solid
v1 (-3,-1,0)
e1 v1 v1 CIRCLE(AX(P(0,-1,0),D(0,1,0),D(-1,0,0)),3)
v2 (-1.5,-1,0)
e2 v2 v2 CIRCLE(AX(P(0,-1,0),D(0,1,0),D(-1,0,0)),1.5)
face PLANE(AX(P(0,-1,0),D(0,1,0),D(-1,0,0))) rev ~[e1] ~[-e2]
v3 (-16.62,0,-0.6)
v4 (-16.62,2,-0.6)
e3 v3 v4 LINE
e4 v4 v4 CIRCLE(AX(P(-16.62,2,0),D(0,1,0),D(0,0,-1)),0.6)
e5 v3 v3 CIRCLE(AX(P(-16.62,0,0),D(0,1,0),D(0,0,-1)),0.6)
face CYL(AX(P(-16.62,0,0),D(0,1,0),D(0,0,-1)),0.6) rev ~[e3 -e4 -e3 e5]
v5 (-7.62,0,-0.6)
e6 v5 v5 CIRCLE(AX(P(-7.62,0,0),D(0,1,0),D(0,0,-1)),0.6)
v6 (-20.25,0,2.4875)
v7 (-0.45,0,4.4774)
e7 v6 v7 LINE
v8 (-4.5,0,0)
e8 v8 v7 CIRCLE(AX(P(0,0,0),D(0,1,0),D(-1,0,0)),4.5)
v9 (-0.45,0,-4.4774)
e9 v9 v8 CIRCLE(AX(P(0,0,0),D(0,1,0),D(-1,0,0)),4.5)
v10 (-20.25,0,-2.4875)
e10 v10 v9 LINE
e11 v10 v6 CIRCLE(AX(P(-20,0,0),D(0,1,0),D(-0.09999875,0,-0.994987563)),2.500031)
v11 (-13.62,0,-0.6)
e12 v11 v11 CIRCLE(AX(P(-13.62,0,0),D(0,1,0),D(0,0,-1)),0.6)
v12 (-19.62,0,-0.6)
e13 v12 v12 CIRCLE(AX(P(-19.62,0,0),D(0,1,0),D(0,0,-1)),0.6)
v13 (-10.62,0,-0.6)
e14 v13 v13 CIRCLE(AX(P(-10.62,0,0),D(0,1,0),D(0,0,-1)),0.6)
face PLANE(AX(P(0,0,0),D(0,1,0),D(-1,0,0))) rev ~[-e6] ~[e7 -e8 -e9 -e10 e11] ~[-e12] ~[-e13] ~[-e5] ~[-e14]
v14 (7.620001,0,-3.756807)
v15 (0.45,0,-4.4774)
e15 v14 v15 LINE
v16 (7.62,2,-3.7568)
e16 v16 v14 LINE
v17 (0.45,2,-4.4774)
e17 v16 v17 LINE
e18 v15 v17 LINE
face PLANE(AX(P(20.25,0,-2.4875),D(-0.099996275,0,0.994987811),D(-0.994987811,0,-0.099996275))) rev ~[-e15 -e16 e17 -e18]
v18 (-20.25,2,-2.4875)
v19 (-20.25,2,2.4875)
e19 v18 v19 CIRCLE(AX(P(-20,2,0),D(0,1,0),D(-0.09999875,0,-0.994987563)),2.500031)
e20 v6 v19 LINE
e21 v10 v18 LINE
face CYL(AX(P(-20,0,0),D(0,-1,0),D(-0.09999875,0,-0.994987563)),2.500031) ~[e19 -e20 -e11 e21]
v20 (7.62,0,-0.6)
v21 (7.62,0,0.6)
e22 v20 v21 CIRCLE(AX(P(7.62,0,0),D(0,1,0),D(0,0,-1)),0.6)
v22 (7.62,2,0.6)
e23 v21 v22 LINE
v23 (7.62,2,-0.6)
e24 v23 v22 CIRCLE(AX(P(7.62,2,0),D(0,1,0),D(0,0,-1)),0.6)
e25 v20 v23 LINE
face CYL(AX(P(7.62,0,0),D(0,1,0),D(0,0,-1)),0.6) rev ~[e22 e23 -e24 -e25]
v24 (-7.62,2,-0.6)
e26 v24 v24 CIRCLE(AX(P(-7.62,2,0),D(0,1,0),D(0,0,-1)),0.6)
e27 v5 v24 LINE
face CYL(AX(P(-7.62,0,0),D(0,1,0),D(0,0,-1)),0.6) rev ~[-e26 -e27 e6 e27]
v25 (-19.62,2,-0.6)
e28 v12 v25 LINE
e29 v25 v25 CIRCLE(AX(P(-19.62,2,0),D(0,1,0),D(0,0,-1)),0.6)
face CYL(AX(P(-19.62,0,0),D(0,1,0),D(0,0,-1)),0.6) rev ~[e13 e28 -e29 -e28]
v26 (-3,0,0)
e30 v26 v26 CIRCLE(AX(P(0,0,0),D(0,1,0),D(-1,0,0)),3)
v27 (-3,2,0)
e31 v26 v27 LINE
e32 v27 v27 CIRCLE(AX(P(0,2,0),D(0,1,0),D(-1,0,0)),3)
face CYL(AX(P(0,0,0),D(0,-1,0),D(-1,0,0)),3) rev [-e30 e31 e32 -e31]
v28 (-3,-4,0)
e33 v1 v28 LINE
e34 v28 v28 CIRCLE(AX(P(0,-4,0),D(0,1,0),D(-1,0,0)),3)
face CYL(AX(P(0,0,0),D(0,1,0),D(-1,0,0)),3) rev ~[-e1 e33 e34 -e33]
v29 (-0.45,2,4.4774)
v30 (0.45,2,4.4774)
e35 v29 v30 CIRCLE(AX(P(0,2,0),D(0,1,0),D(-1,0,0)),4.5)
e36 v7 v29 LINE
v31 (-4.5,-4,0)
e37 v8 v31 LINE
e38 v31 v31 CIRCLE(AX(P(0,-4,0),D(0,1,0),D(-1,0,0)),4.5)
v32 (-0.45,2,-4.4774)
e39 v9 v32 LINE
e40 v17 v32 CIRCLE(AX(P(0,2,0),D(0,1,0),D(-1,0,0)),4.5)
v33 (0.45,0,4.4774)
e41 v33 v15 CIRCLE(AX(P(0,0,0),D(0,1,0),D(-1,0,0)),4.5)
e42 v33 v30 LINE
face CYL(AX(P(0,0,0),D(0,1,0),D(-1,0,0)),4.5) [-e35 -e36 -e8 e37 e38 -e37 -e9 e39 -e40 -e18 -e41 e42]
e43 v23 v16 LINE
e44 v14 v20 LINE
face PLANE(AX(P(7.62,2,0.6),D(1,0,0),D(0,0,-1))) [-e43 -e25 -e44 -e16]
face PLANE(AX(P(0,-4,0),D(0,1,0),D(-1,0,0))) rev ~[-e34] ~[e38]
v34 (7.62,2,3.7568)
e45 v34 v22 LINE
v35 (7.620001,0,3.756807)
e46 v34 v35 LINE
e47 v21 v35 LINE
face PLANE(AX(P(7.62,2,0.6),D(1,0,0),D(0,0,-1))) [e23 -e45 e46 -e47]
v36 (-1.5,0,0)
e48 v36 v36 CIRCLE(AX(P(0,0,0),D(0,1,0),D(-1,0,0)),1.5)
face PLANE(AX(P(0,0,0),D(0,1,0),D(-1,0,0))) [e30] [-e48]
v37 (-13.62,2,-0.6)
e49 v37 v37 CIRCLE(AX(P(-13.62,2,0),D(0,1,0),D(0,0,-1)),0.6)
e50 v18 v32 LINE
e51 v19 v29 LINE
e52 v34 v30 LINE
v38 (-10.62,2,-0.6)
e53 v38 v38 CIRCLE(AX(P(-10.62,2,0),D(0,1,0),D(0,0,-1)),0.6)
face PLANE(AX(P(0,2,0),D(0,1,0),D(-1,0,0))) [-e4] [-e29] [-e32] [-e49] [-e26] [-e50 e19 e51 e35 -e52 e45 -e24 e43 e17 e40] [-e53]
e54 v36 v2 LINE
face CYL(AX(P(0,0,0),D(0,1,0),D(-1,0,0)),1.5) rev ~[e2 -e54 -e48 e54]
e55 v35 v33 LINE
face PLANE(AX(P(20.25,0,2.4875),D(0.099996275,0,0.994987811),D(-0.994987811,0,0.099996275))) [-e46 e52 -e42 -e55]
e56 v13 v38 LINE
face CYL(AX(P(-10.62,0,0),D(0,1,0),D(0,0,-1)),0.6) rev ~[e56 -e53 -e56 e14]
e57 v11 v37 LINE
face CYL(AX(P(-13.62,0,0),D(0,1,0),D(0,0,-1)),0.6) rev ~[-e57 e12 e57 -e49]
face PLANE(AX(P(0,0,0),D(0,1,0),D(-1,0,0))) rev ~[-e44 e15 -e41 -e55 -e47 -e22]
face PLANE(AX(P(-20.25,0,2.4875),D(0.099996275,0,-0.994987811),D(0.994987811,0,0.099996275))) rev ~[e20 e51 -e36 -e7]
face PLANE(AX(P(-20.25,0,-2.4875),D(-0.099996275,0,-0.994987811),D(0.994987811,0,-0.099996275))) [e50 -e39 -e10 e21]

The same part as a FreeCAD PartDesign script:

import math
import FreeCAD as App
import Part
import Sketcher
Q = App.Units.Quantity

doc = App.newDocument("Part")
params = doc.addObject("Spreadsheet::Sheet", "Params")
for row, (alias, value) in enumerate([
    ("sketch1_diameter", "6 mm"),
    ("sketch1_radius", "4.5 mm"),
    ("sketch1_radius2", "2.5 mm"),
    ("pad1_length", "2 mm"),
    ("sketch2_diameter", "9 mm"),
    ("sketch2_diameter2", "3 mm"),
    ("pad2_length", "1 mm"),
    ("sketch3_diameter", "9 mm"),
    ("sketch3_diameter2", "6 mm"),
    ("pad3_length", "4 mm"),
    ("sketch4_diameter", "1.2 mm"),
    ("hole_diameter", "1.2 mm"),
    ("hole_depth", "8 mm"),
    ("sketch5_diameter", "1.2 mm"),
    ("sketch5_radius", "2.5 mm"),
    ("pocket1_length", "2 mm"),
], start=1):
    params.set(f"A{row}", alias)
    params.set(f"B{row}", "=" + value)
    params.setAlias(f"B{row}", alias)

body = doc.addObject("PartDesign::Body", "Body")

sketch1 = doc.addObject("Sketcher::SketchObject", "Sketch")
body.addObject(sketch1)
sketch1.AttachmentSupport = (doc.XZ_Plane, [""])
sketch1.MapMode = "FlatFace"
sketch1.addGeometry(Part.ArcOfCircle(Part.Circle(App.Vector(0, 0, 0), App.Vector(0, 0, 1), 4.5), math.radians(-95.739226), math.radians(-84.260774)), False)
sketch1.addGeometry(Part.LineSegment(App.Vector(-0.45, -4.4774, 0), App.Vector(-20.25, -2.4875, 0)), False)
sketch1.addGeometry(Part.ArcOfCircle(Part.Circle(App.Vector(-20, 0, 0), App.Vector(0, 0, 1), 2.500031), math.radians(95.739098), math.radians(264.260902)), False)
sketch1.addGeometry(Part.LineSegment(App.Vector(-20.25, 2.4875, 0), App.Vector(-0.45, 4.4774, 0)), False)
sketch1.addGeometry(Part.ArcOfCircle(Part.Circle(App.Vector(0, 0, 0), App.Vector(0, 0, 1), 4.5), math.radians(84.260774), math.radians(95.739226)), False)
sketch1.addGeometry(Part.LineSegment(App.Vector(0.45, 4.4774, 0), App.Vector(20.25, 2.4875, 0)), False)
sketch1.addGeometry(Part.ArcOfCircle(Part.Circle(App.Vector(20, 0, 0), App.Vector(0, 0, 1), 2.500031), math.radians(-84.260902), math.radians(84.260902)), False)
sketch1.addGeometry(Part.LineSegment(App.Vector(20.25, -2.4875, 0), App.Vector(0.45, -4.4774, 0)), False)
sketch1.addGeometry(Part.Circle(App.Vector(0, 0, 0), App.Vector(0, 0, 1), 3), False)
sketch1.addConstraint(Sketcher.Constraint("Tangent", 0, 1, 1, 1))
sketch1.addConstraint(Sketcher.Constraint("Tangent", 1, 2, 2, 2))
sketch1.addConstraint(Sketcher.Constraint("Tangent", 2, 1, 3, 1))
sketch1.addConstraint(Sketcher.Constraint("Tangent", 3, 2, 4, 2))
sketch1.addConstraint(Sketcher.Constraint("Tangent", 4, 1, 5, 1))
sketch1.addConstraint(Sketcher.Constraint("Tangent", 5, 2, 6, 2))
sketch1.addConstraint(Sketcher.Constraint("Tangent", 6, 1, 7, 1))
sketch1.addConstraint(Sketcher.Constraint("Tangent", 7, 2, 0, 2))
sketch1.addConstraint(Sketcher.Constraint("Coincident", 0, 3, -1, 1))
sketch1.addConstraint(Sketcher.Constraint("Coincident", 4, 3, -1, 1))
sketch1.addConstraint(Sketcher.Constraint("Coincident", 8, 3, -1, 1))
sketch1.addConstraint(Sketcher.Constraint("Equal", 0, 4))
sketch1.addConstraint(Sketcher.Constraint("Equal", 2, 6))
sketch1.addConstraint(Sketcher.Constraint("Symmetric", 2, 3, 6, 3, -1, 1))
sketch1.addConstraint(Sketcher.Constraint("PointOnObject", 2, 3, -1))
sketch1.addConstraint(Sketcher.Constraint("Diameter", 8, 6.0))
sketch1.addConstraint(Sketcher.Constraint("Radius", 0, 4.5))
sketch1.addConstraint(Sketcher.Constraint("Radius", 2, 2.5))
sketch1.addConstraint(Sketcher.Constraint("DistanceX", 2, 3, 6, 3, 40.0))
sketch1.setExpression("Constraints[15]", "Params.sketch1_diameter")
sketch1.setExpression("Constraints[16]", "Params.sketch1_radius")
sketch1.setExpression("Constraints[17]", "Params.sketch1_radius2")
pad1 = doc.addObject("PartDesign::Pad", "Pad")
body.addObject(pad1)
pad1.Profile = sketch1
pad1.setExpression("Length", "Params.pad1_length")
pad1.Reversed = True

sketch2 = doc.addObject("Sketcher::SketchObject", "Sketch001")
body.addObject(sketch2)
sketch2.AttachmentSupport = (doc.XZ_Plane, [""])
sketch2.MapMode = "FlatFace"
sketch2.addGeometry(Part.Circle(App.Vector(0, 0, 0), App.Vector(0, 0, 1), 4.5), False)
sketch2.addGeometry(Part.Circle(App.Vector(0, 0, 0), App.Vector(0, 0, 1), 1.5), False)
sketch2.addConstraint(Sketcher.Constraint("Coincident", 0, 3, -1, 1))
sketch2.addConstraint(Sketcher.Constraint("Coincident", 1, 3, -1, 1))
sketch2.addConstraint(Sketcher.Constraint("Diameter", 0, 9.0))
sketch2.addConstraint(Sketcher.Constraint("Diameter", 1, 3.0))
sketch2.setExpression("Constraints[2]", "Params.sketch2_diameter")
sketch2.setExpression("Constraints[3]", "Params.sketch2_diameter2")
pad2 = doc.addObject("PartDesign::Pad", "Pad001")
body.addObject(pad2)
pad2.Profile = sketch2
pad2.setExpression("Length", "Params.pad2_length")

sketch3 = doc.addObject("Sketcher::SketchObject", "Sketch002")
body.addObject(sketch3)
sketch3.AttachmentSupport = (doc.XZ_Plane, [""])
sketch3.MapMode = "FlatFace"
sketch3.addGeometry(Part.Circle(App.Vector(0, 0, 0), App.Vector(0, 0, 1), 4.5), False)
sketch3.addGeometry(Part.Circle(App.Vector(0, 0, 0), App.Vector(0, 0, 1), 3), False)
sketch3.addConstraint(Sketcher.Constraint("Coincident", 0, 3, -1, 1))
sketch3.addConstraint(Sketcher.Constraint("Coincident", 1, 3, -1, 1))
sketch3.addConstraint(Sketcher.Constraint("Diameter", 0, 9.0))
sketch3.addConstraint(Sketcher.Constraint("Diameter", 1, 6.0))
sketch3.setExpression("Constraints[2]", "Params.sketch3_diameter")
sketch3.setExpression("Constraints[3]", "Params.sketch3_diameter2")
pad3 = doc.addObject("PartDesign::Pad", "Pad002")
body.addObject(pad3)
pad3.Profile = sketch3
pad3.setExpression("Length", "Params.pad3_length")

sketch4 = doc.addObject("Sketcher::SketchObject", "Sketch003")
body.addObject(sketch4)
sketch4.AttachmentSupport = (doc.XZ_Plane, [""])
sketch4.MapMode = "FlatFace"
sketch4.addGeometry(Part.Circle(App.Vector(-7.62, 0, 0), App.Vector(0, 0, 1), 0.6), False)
sketch4.addGeometry(Part.Circle(App.Vector(-10.62, 0, 0), App.Vector(0, 0, 1), 0.6), False)
sketch4.addGeometry(Part.Circle(App.Vector(-13.62, 0, 0), App.Vector(0, 0, 1), 0.6), False)
sketch4.addGeometry(Part.Circle(App.Vector(-16.62, 0, 0), App.Vector(0, 0, 1), 0.6), False)
sketch4.addGeometry(Part.Circle(App.Vector(-19.62, 0, 0), App.Vector(0, 0, 1), 0.6), False)
sketch4.addGeometry(Part.Circle(App.Vector(19.62, 0, 0), App.Vector(0, 0, 1), 0.6), False)
sketch4.addGeometry(Part.Circle(App.Vector(16.62, 0, 0), App.Vector(0, 0, 1), 0.6), False)
sketch4.addGeometry(Part.Circle(App.Vector(13.62, 0, 0), App.Vector(0, 0, 1), 0.6), False)
sketch4.addGeometry(Part.Circle(App.Vector(10.62, 0, 0), App.Vector(0, 0, 1), 0.6), False)
sketch4.addGeometry(Part.Circle(App.Vector(7.62, 0, 0), App.Vector(0, 0, 1), 0.6), False)
sketch4.addConstraint(Sketcher.Constraint("Equal", 0, 1))
sketch4.addConstraint(Sketcher.Constraint("Equal", 1, 2))
sketch4.addConstraint(Sketcher.Constraint("Equal", 2, 3))
sketch4.addConstraint(Sketcher.Constraint("Equal", 3, 4))
sketch4.addConstraint(Sketcher.Constraint("Equal", 4, 5))
sketch4.addConstraint(Sketcher.Constraint("Equal", 5, 6))
sketch4.addConstraint(Sketcher.Constraint("Equal", 6, 7))
sketch4.addConstraint(Sketcher.Constraint("Equal", 7, 8))
sketch4.addConstraint(Sketcher.Constraint("Equal", 8, 9))
sketch4.addConstraint(Sketcher.Constraint("Symmetric", 4, 3, 5, 3, -1, 1))
sketch4.addConstraint(Sketcher.Constraint("Symmetric", 3, 3, 6, 3, -1, 1))
sketch4.addConstraint(Sketcher.Constraint("Symmetric", 2, 3, 7, 3, -1, 1))
sketch4.addConstraint(Sketcher.Constraint("Symmetric", 1, 3, 8, 3, -1, 1))
sketch4.addConstraint(Sketcher.Constraint("Symmetric", 0, 3, 9, 3, -1, 1))
sketch4.addConstraint(Sketcher.Constraint("PointOnObject", 0, 3, -1))
sketch4.addConstraint(Sketcher.Constraint("PointOnObject", 1, 3, -1))
sketch4.addConstraint(Sketcher.Constraint("PointOnObject", 2, 3, -1))
sketch4.addConstraint(Sketcher.Constraint("PointOnObject", 3, 3, -1))
sketch4.addConstraint(Sketcher.Constraint("PointOnObject", 4, 3, -1))
sketch4.addConstraint(Sketcher.Constraint("Diameter", 0, 1.2))
sketch4.addConstraint(Sketcher.Constraint("DistanceX", 1, 3, 0, 3, 3.0))
sketch4.addConstraint(Sketcher.Constraint("DistanceX", 2, 3, 1, 3, 3.0))
sketch4.addConstraint(Sketcher.Constraint("DistanceX", 3, 3, 2, 3, 3.0))
sketch4.addConstraint(Sketcher.Constraint("DistanceX", 4, 3, 3, 3, 3.0))
sketch4.addConstraint(Sketcher.Constraint("DistanceX", 0, 3, -1, 1, 7.62))
sketch4.setExpression("Constraints[19]", "Params.sketch4_diameter")
doc.recompute()
hole = doc.addObject("PartDesign::Hole", "Hole")
body.addObject(hole)
hole.Profile = sketch4
hole.ThreadType = "None"
hole.setExpression("Diameter", "Params.hole_diameter")
hole.DepthType = "Dimension"
hole.setExpression("Depth", "Params.hole_depth")
hole.DrillPoint = "Angled"
hole.DrillPointAngle = 118

sketch5 = doc.addObject("Sketcher::SketchObject", "Sketch004")
body.addObject(sketch5)
sketch5.AttachmentSupport = (doc.XZ_Plane, [""])
sketch5.MapMode = "FlatFace"
sketch5.AttachmentOffset = App.Placement(App.Vector(0, 0, -2), App.Rotation())
sketch5.addGeometry(Part.LineSegment(App.Vector(7.620001, 3.756815, 0), App.Vector(20.25, 2.4875, 0)), False)
sketch5.addGeometry(Part.ArcOfCircle(Part.Circle(App.Vector(20, 0, 0), App.Vector(0, 0, 1), 2.500031), math.radians(-84.260902), math.radians(84.260902)), False)
sketch5.addGeometry(Part.LineSegment(App.Vector(20.25, -2.4875, 0), App.Vector(7.620001, -3.756815, 0)), False)
sketch5.addGeometry(Part.LineSegment(App.Vector(7.62, -3.7568, 0), App.Vector(7.62, 3.7568, 0)), False)
sketch5.addGeometry(Part.Circle(App.Vector(16.62, 0, 0), App.Vector(0, 0, 1), 0.6), False)
sketch5.addGeometry(Part.Circle(App.Vector(19.62, 0, 0), App.Vector(0, 0, 1), 0.6), False)
sketch5.addGeometry(Part.Circle(App.Vector(10.62, 0, 0), App.Vector(0, 0, 1), 0.6), False)
sketch5.addGeometry(Part.Circle(App.Vector(13.62, 0, 0), App.Vector(0, 0, 1), 0.6), False)
sketch5.addConstraint(Sketcher.Constraint("Tangent", 0, 2, 1, 2))
sketch5.addConstraint(Sketcher.Constraint("Tangent", 1, 1, 2, 1))
sketch5.addConstraint(Sketcher.Constraint("Coincident", 2, 2, 3, 1))
sketch5.addConstraint(Sketcher.Constraint("Coincident", 3, 2, 0, 1))
sketch5.addConstraint(Sketcher.Constraint("Vertical", 3))
sketch5.addConstraint(Sketcher.Constraint("Equal", 4, 5))
sketch5.addConstraint(Sketcher.Constraint("Equal", 5, 6))
sketch5.addConstraint(Sketcher.Constraint("Equal", 6, 7))
sketch5.addConstraint(Sketcher.Constraint("Symmetric", 0, 2, 1, 1, -1))
sketch5.addConstraint(Sketcher.Constraint("PointOnObject", 4, 3, -1))
sketch5.addConstraint(Sketcher.Constraint("PointOnObject", 5, 3, -1))
sketch5.addConstraint(Sketcher.Constraint("PointOnObject", 6, 3, -1))
sketch5.addConstraint(Sketcher.Constraint("PointOnObject", 7, 3, -1))
sketch5.addConstraint(Sketcher.Constraint("Diameter", 4, 1.2))
sketch5.addConstraint(Sketcher.Constraint("Radius", 1, 2.5))
sketch5.addConstraint(Sketcher.Constraint("DistanceX", -1, 1, 1, 3, 20.0))
sketch5.addConstraint(Sketcher.Constraint("DistanceX", 4, 3, 5, 3, 3.0))
sketch5.addConstraint(Sketcher.Constraint("DistanceX", 6, 3, 4, 3, 6.0))
sketch5.addConstraint(Sketcher.Constraint("DistanceX", 6, 3, 7, 3, 3.0))
sketch5.addConstraint(Sketcher.Constraint("DistanceX", 2, 2, 6, 3, 3.0))
sketch5.addConstraint(Sketcher.Constraint("Angle", 0, Q("-5.739 deg")))
sketch5.addConstraint(Sketcher.Constraint("DistanceX", -1, 1, 4, 3, 16.62))
sketch5.setExpression("Constraints[13]", "Params.sketch5_diameter")
sketch5.setExpression("Constraints[14]", "Params.sketch5_radius")
pocket1 = doc.addObject("PartDesign::Pocket", "Pocket")
body.addObject(pocket1)
pocket1.Profile = sketch5
pocket1.setExpression("Length", "Params.pocket1_length")
pocket1.Reversed = True

doc.recompute()
